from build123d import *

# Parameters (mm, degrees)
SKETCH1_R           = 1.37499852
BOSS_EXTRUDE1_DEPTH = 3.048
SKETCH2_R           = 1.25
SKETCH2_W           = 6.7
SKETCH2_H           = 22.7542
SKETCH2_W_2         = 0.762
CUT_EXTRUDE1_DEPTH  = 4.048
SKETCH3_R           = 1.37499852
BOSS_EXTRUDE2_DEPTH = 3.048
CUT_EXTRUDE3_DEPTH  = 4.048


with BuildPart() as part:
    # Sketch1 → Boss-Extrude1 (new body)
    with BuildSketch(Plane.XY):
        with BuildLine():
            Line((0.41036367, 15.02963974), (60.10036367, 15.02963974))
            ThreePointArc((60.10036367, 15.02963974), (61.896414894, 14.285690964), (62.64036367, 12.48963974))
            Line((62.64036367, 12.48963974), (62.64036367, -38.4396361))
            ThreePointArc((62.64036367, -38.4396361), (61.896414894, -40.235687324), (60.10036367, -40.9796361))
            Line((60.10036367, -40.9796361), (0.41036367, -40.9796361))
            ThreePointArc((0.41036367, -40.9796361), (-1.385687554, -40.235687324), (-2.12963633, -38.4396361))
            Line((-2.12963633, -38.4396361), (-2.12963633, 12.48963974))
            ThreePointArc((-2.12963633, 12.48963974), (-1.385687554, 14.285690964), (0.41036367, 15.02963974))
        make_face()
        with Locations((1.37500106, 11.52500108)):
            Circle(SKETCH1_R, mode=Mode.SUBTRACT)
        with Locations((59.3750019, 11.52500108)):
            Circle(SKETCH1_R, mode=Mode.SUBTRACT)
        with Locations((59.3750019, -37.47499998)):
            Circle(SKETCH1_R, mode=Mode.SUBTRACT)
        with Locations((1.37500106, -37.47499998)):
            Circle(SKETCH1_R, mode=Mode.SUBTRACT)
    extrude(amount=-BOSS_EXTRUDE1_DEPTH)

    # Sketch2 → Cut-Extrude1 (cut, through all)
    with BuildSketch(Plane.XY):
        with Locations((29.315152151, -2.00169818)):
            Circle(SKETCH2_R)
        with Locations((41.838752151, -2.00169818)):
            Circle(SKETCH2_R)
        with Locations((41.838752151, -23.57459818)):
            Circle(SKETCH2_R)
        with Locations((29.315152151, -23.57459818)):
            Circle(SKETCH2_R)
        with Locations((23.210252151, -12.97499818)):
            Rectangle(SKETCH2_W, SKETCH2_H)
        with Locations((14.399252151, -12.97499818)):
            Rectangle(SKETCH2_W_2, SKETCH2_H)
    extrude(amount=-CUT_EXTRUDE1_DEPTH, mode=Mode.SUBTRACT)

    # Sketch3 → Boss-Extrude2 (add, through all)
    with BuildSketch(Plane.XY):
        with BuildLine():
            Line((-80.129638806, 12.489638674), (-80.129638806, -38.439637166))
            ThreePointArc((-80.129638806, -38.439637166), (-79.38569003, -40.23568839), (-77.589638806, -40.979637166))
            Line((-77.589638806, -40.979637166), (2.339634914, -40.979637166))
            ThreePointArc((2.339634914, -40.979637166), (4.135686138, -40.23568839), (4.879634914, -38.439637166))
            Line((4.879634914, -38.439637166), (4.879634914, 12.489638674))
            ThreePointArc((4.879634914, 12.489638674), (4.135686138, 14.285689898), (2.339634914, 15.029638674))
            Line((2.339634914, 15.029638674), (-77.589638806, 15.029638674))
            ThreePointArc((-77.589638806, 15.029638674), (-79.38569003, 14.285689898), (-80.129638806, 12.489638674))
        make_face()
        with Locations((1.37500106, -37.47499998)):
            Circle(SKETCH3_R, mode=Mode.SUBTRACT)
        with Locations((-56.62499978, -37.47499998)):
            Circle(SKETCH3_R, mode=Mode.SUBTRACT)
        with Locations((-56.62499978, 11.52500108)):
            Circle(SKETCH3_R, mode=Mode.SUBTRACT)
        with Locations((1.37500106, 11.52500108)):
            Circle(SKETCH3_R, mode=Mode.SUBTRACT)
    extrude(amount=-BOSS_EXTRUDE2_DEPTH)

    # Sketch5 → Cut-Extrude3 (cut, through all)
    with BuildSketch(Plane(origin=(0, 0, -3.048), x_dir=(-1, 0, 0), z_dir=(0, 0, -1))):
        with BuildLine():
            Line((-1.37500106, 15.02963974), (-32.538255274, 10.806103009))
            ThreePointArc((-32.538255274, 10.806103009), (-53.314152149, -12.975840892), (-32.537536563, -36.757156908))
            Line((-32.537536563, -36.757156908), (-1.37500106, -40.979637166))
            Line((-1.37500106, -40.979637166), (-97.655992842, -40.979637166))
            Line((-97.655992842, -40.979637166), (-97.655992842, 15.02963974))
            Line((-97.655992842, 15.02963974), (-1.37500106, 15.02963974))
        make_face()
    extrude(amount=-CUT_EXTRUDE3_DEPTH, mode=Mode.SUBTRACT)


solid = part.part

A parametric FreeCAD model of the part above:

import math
import FreeCAD as App
import Part
import Sketcher
Q = App.Units.Quantity

doc = App.newDocument("Part")
body = doc.addObject("PartDesign::Body", "Body")

sketch1 = body.newObject("Sketcher::SketchObject", "Sketch")
sketch1.AttachmentSupport = (doc.getObject("XY_Plane"), [""])
sketch1.MapMode = "FlatFace"
sketch1.addGeometry(Part.LineSegment(App.Vector(60.1, 15, 0), App.Vector(0.4, 15, 0)), False)
sketch1.addGeometry(Part.ArcOfCircle(Part.Circle(App.Vector(0.4, 12.5, 0), App.Vector(0, 0, 1), 2.5), math.radians(90), math.radians(180)), False)
sketch1.addGeometry(Part.LineSegment(App.Vector(-2.1, 12.5, 0), App.Vector(-2.1, -38.4, 0)), False)
sketch1.addGeometry(Part.ArcOfCircle(Part.Circle(App.Vector(0.4, -38.4, 0), App.Vector(0, 0, 1), 2.5), math.radians(-180), math.radians(-90)), False)
sketch1.addGeometry(Part.LineSegment(App.Vector(0.4, -41, 0), App.Vector(60.1, -41, 0)), False)
sketch1.addGeometry(Part.ArcOfCircle(Part.Circle(App.Vector(60.1, -38.4, 0), App.Vector(0, 0, 1), 2.5), math.radians(-90), math.radians(0)), False)
sketch1.addGeometry(Part.LineSegment(App.Vector(62.6, -38.4, 0), App.Vector(62.6, 12.5, 0)), False)
sketch1.addGeometry(Part.ArcOfCircle(Part.Circle(App.Vector(60.1, 12.5, 0), App.Vector(0, 0, 1), 2.5), math.radians(0), math.radians(90)), False)
sketch1.addGeometry(Part.Circle(App.Vector(59.4, -37.5, 0), App.Vector(0, 0, 1), 1.4), False)
sketch1.addGeometry(Part.Circle(App.Vector(1.4, -37.5, 0), App.Vector(0, 0, 1), 1.4), False)
sketch1.addGeometry(Part.Circle(App.Vector(59.4, 11.5, 0), App.Vector(0, 0, 1), 1.4), False)
sketch1.addGeometry(Part.Circle(App.Vector(1.4, 11.5, 0), App.Vector(0, 0, 1), 1.4), False)
sketch1.addConstraint(Sketcher.Constraint("Tangent", 0, 2, 1, 1))
sketch1.addConstraint(Sketcher.Constraint("Tangent", 1, 2, 2, 1))
sketch1.addConstraint(Sketcher.Constraint("Tangent", 2, 2, 3, 1))
sketch1.addConstraint(Sketcher.Constraint("Tangent", 3, 2, 4, 1))
sketch1.addConstraint(Sketcher.Constraint("Tangent", 4, 2, 5, 1))
sketch1.addConstraint(Sketcher.Constraint("Tangent", 5, 2, 6, 1))
sketch1.addConstraint(Sketcher.Constraint("Tangent", 6, 2, 7, 1))
sketch1.addConstraint(Sketcher.Constraint("Tangent", 7, 2, 0, 1))
sketch1.addConstraint(Sketcher.Constraint("Horizontal", 0))
sketch1.addConstraint(Sketcher.Constraint("Vertical", 2))
sketch1.addConstraint(Sketcher.Constraint("Horizontal", 4))
sketch1.addConstraint(Sketcher.Constraint("Vertical", 6))
sketch1.addConstraint(Sketcher.Constraint("Equal", 1, 3))
sketch1.addConstraint(Sketcher.Constraint("Equal", 3, 5))
sketch1.addConstraint(Sketcher.Constraint("Equal", 5, 7))
sketch1.addConstraint(Sketcher.Constraint("Equal", 8, 9))
sketch1.addConstraint(Sketcher.Constraint("Equal", 9, 10))
sketch1.addConstraint(Sketcher.Constraint("Equal", 10, 11))
sketch1.addConstraint(Sketcher.Constraint("Horizontal", 8, 3, 9, 3))
sketch1.addConstraint(Sketcher.Constraint("Horizontal", 10, 3, 11, 3))
sketch1.addConstraint(Sketcher.Constraint("Vertical", 8, 3, 10, 3))
sketch1.addConstraint(Sketcher.Constraint("Vertical", 9, 3, 11, 3))
sketch1.addConstraint(Sketcher.Constraint("Radius", 1, Q("0.1 in")))
sketch1.addConstraint(Sketcher.Constraint("DistanceX", 0, 2, 0, 1, Q("2.35 in")))
sketch1.addConstraint(Sketcher.Constraint("Diameter", 8, 2.749997))
sketch1.addConstraint(Sketcher.Constraint("DistanceX", -1, 1, 8, 3, 59.375002))
sketch1.addConstraint(Sketcher.Constraint("DistanceY", 8, 3, -1, 1, 37.475))
sketch1.addConstraint(Sketcher.Constraint("DistanceX", -1, 1, 9, 3, 1.375001))
sketch1.addConstraint(Sketcher.Constraint("DistanceY", -1, 1, 10, 3, 11.525001))
sketch1.addConstraint(Sketcher.Constraint("DistanceY", 2, 2, 2, 1, 50.929276))
sketch1.addConstraint(Sketcher.Constraint("DistanceY", -1, 1, 1, 3, 12.48964))
sketch1.addConstraint(Sketcher.Constraint("DistanceX", 8, 3, 5, 3, 0.725362))
pad1 = body.newObject("PartDesign::Pad", "Pad")
pad1.Profile = sketch1
pad1.Length = Q("0.12 in")
pad1.Reversed = True

sketch2 = body.newObject("Sketcher::SketchObject", "Sketch001")
sketch2.AttachmentSupport = (doc.getObject("XY_Plane"), [""])
sketch2.MapMode = "FlatFace"
sketch2.addGeometry(Part.Circle(App.Vector(29.3, -2, 0), App.Vector(0, 0, 1), 1.2), False)
sketch2.addGeometry(Part.Circle(App.Vector(41.8, -2, 0), App.Vector(0, 0, 1), 1.2), False)
sketch2.addGeometry(Part.Circle(App.Vector(41.8, -23.6, 0), App.Vector(0, 0, 1), 1.2), False)
sketch2.addGeometry(Part.Circle(App.Vector(29.3, -23.6, 0), App.Vector(0, 0, 1), 1.2), False)
sketch2.addGeometry(Part.LineSegment(App.Vector(19.9, -1.6, 0), App.Vector(19.9, -24.4, 0)), False)
sketch2.addGeometry(Part.LineSegment(App.Vector(19.9, -24.4, 0), App.Vector(26.6, -24.4, 0)), False)
sketch2.addGeometry(Part.LineSegment(App.Vector(26.6, -24.4, 0), App.Vector(26.6, -1.6, 0)), False)
sketch2.addGeometry(Part.LineSegment(App.Vector(26.6, -1.6, 0), App.Vector(19.9, -1.6, 0)), False)
sketch2.addGeometry(Part.LineSegment(App.Vector(14, -1.6, 0), App.Vector(14, -24.4, 0)), False)
sketch2.addGeometry(Part.LineSegment(App.Vector(14, -24.4, 0), App.Vector(14.8, -24.4, 0)), False)
sketch2.addGeometry(Part.LineSegment(App.Vector(14.8, -24.4, 0), App.Vector(14.8, -1.6, 0)), False)
sketch2.addGeometry(Part.LineSegment(App.Vector(14.8, -1.6, 0), App.Vector(14, -1.6, 0)), False)
sketch2.addConstraint(Sketcher.Constraint("Coincident", 4, 2, 5, 1))
sketch2.addConstraint(Sketcher.Constraint("Coincident", 5, 2, 6, 1))
sketch2.addConstraint(Sketcher.Constraint("Coincident", 6, 2, 7, 1))
sketch2.addConstraint(Sketcher.Constraint("Coincident", 7, 2, 4, 1))
sketch2.addConstraint(Sketcher.Constraint("Coincident", 8, 2, 9, 1))
sketch2.addConstraint(Sketcher.Constraint("Coincident", 9, 2, 10, 1))
sketch2.addConstraint(Sketcher.Constraint("Coincident", 10, 2, 11, 1))
sketch2.addConstraint(Sketcher.Constraint("Coincident", 11, 2, 8, 1))
sketch2.addConstraint(Sketcher.Constraint("Vertical", 4))
sketch2.addConstraint(Sketcher.Constraint("Horizontal", 5))
sketch2.addConstraint(Sketcher.Constraint("Vertical", 6))
sketch2.addConstraint(Sketcher.Constraint("Horizontal", 7))
sketch2.addConstraint(Sketcher.Constraint("Vertical", 8))
sketch2.addConstraint(Sketcher.Constraint("Horizontal", 9))
sketch2.addConstraint(Sketcher.Constraint("Vertical", 10))
sketch2.addConstraint(Sketcher.Constraint("Horizontal", 11))
sketch2.addConstraint(Sketcher.Constraint("Equal", 0, 1))
sketch2.addConstraint(Sketcher.Constraint("Equal", 1, 2))
sketch2.addConstraint(Sketcher.Constraint("Equal", 2, 3))
sketch2.addConstraint(Sketcher.Constraint("Horizontal", 0, 3, 1, 3))
sketch2.addConstraint(Sketcher.Constraint("Horizontal", 2, 3, 3, 3))
sketch2.addConstraint(Sketcher.Constraint("Horizontal", 5, 2, 8, 2))
sketch2.addConstraint(Sketcher.Constraint("Horizontal", 7, 2, 10, 2))
sketch2.addConstraint(Sketcher.Constraint("Vertical", 1, 3, 2, 3))
sketch2.addConstraint(Sketcher.Constraint("Vertical", 0, 3, 3, 3))
sketch2.addConstraint(Sketcher.Constraint("DistanceX", 9, 1, 9, 2, Q("0.03 in")))
sketch2.addConstraint(Sketcher.Constraint("DistanceX", 9, 2, 4, 2, Q("0.2 in")))
sketch2.addConstraint(Sketcher.Constraint("Diameter", 0, 2.5))
sketch2.addConstraint(Sketcher.Constraint("DistanceX", 5, 1, 5, 2, 6.7))
sketch2.addConstraint(Sketcher.Constraint("DistanceY", 4, 2, 4, 1, 22.7542))
sketch2.addConstraint(Sketcher.Constraint("DistanceY", 0, 3, -1, 1, 2.001698))
sketch2.addConstraint(Sketcher.Constraint("DistanceY", 2, 3, -1, 1, 23.574598))
sketch2.addConstraint(Sketcher.Constraint("DistanceY", 4, 2, -1, 1, 24.352098))
sketch2.addConstraint(Sketcher.Constraint("DistanceX", 0, 3, 1, 3, 12.5236))
sketch2.addConstraint(Sketcher.Constraint("DistanceX", 4, 2, 3, 3, 9.4549))
sketch2.addConstraint(Sketcher.Constraint("DistanceX", -1, 1, 0, 3, 29.315152))
pocket1 = body.newObject("PartDesign::Pocket", "Pocket")
pocket1.Profile = sketch2
pocket1.Type = "ThroughAll"

sketch3 = body.newObject("Sketcher::SketchObject", "Sketch002")
sketch3.AttachmentSupport = (doc.getObject("XY_Plane"), [""])
sketch3.MapMode = "FlatFace"
sketch3.addGeometry(Part.LineSegment(App.Vector(-80.1, 12.5, 0), App.Vector(-80.1, -38.4, 0)), False)
sketch3.addGeometry(Part.ArcOfCircle(Part.Circle(App.Vector(-77.6, -38.4, 0), App.Vector(0, 0, 1), 2.5), math.radians(-180), math.radians(-90)), False)
sketch3.addGeometry(Part.LineSegment(App.Vector(-77.6, -41, 0), App.Vector(2.3, -41, 0)), False)
sketch3.addGeometry(Part.ArcOfCircle(Part.Circle(App.Vector(2.3, -38.4, 0), App.Vector(0, 0, 1), 2.5), math.radians(-90), math.radians(0)), False)
sketch3.addGeometry(Part.LineSegment(App.Vector(4.9, -38.4, 0), App.Vector(4.9, 12.5, 0)), False)
sketch3.addGeometry(Part.ArcOfCircle(Part.Circle(App.Vector(2.3, 12.5, 0), App.Vector(0, 0, 1), 2.5), math.radians(0), math.radians(90)), False)
sketch3.addGeometry(Part.LineSegment(App.Vector(2.3, 15, 0), App.Vector(-77.6, 15, 0)), False)
sketch3.addGeometry(Part.ArcOfCircle(Part.Circle(App.Vector(-77.6, 12.5, 0), App.Vector(0, 0, 1), 2.5), math.radians(90), math.radians(180)), False)
sketch3.addGeometry(Part.Circle(App.Vector(-56.6, -37.5, 0), App.Vector(0, 0, 1), 1.4), False)
sketch3.addGeometry(Part.Circle(App.Vector(1.4, -37.5, 0), App.Vector(0, 0, 1), 1.4), False)
sketch3.addGeometry(Part.Circle(App.Vector(-56.6, 11.5, 0), App.Vector(0, 0, 1), 1.4), False)
sketch3.addGeometry(Part.Circle(App.Vector(1.4, 11.5, 0), App.Vector(0, 0, 1), 1.4), False)
sketch3.addConstraint(Sketcher.Constraint("Tangent", 0, 2, 1, 1))
sketch3.addConstraint(Sketcher.Constraint("Tangent", 1, 2, 2, 1))
sketch3.addConstraint(Sketcher.Constraint("Tangent", 2, 2, 3, 1))
sketch3.addConstraint(Sketcher.Constraint("Tangent", 3, 2, 4, 1))
sketch3.addConstraint(Sketcher.Constraint("Tangent", 4, 2, 5, 1))
sketch3.addConstraint(Sketcher.Constraint("Tangent", 5, 2, 6, 1))
sketch3.addConstraint(Sketcher.Constraint("Tangent", 6, 2, 7, 1))
sketch3.addConstraint(Sketcher.Constraint("Tangent", 7, 2, 0, 1))
sketch3.addConstraint(Sketcher.Constraint("Vertical", 0))
sketch3.addConstraint(Sketcher.Constraint("Horizontal", 2))
sketch3.addConstraint(Sketcher.Constraint("Vertical", 4))
sketch3.addConstraint(Sketcher.Constraint("Horizontal", 6))
sketch3.addConstraint(Sketcher.Constraint("Equal", 1, 3))
sketch3.addConstraint(Sketcher.Constraint("Equal", 3, 5))
sketch3.addConstraint(Sketcher.Constraint("Equal", 5, 7))
sketch3.addConstraint(Sketcher.Constraint("Equal", 8, 9))
sketch3.addConstraint(Sketcher.Constraint("Equal", 9, 10))
sketch3.addConstraint(Sketcher.Constraint("Equal", 10, 11))
sketch3.addConstraint(Sketcher.Constraint("Horizontal", 8, 3, 9, 3))
sketch3.addConstraint(Sketcher.Constraint("Horizontal", 10, 3, 11, 3))
sketch3.addConstraint(Sketcher.Constraint("Vertical", 8, 3, 10, 3))
sketch3.addConstraint(Sketcher.Constraint("Vertical", 9, 3, 11, 3))
sketch3.addConstraint(Sketcher.Constraint("Radius", 1, Q("0.1 in")))
sketch3.addConstraint(Sketcher.Constraint("Diameter", 8, 2.749997))
sketch3.addConstraint(Sketcher.Constraint("DistanceX", 8, 3, -1, 1, 56.625))
sketch3.addConstraint(Sketcher.Constraint("DistanceY", 8, 3, -1, 1, 37.475))
sketch3.addConstraint(Sketcher.Constraint("DistanceX", -1, 1, 9, 3, 1.375001))
sketch3.addConstraint(Sketcher.Constraint("DistanceY", -1, 1, 10, 3, 11.525001))
sketch3.addConstraint(Sketcher.Constraint("DistanceX", 2, 1, 2, 2, 79.929274))
sketch3.addConstraint(Sketcher.Constraint("DistanceY", 0, 2, 0, 1, 50.929276))
sketch3.addConstraint(Sketcher.Constraint("DistanceX", 1, 3, -1, 1, 77.589639))
sketch3.addConstraint(Sketcher.Constraint("DistanceY", -1, 1, 5, 3, 12.489639))
pad2 = body.newObject("PartDesign::Pad", "Pad001")
pad2.Profile = sketch3
pad2.Length = Q("0.12 in")
pad2.Reversed = True

sketch4 = body.newObject("Sketcher::SketchObject", "Sketch003")
sketch4.AttachmentSupport = (doc.getObject("XY_Plane"), [""])
sketch4.MapMode = "FlatFace"
sketch4.AttachmentOffset = App.Placement(App.Vector(0, 0, -0.12 * 25.4), App.Rotation())
sketch4.addGeometry(Part.LineSegment(App.Vector(33, 11, 0), App.Vector(1, 15, 0)), False)
sketch4.addGeometry(Part.LineSegment(App.Vector(1, 15, 0), App.Vector(98, 15, 0)), False)
sketch4.addGeometry(Part.LineSegment(App.Vector(98, 15, 0), App.Vector(98, -41, 0)), False)
sketch4.addGeometry(Part.LineSegment(App.Vector(98, -41, 0), App.Vector(1, -41, 0)), False)
sketch4.addGeometry(Part.LineSegment(App.Vector(1, -41, 0), App.Vector(33, -37, 0)), False)
sketch4.addGeometry(Part.ArcOfCircle(Part.Circle(App.Vector(29, -13, 0), App.Vector(0, 0, 1), 24), math.radians(-82), math.radians(82)), False)
sketch4.addConstraint(Sketcher.Constraint("Coincident", 0, 2, 1, 1))
sketch4.addConstraint(Sketcher.Constraint("Coincident", 1, 2, 2, 1))
sketch4.addConstraint(Sketcher.Constraint("Coincident", 2, 2, 3, 1))
sketch4.addConstraint(Sketcher.Constraint("Coincident", 3, 2, 4, 1))
sketch4.addConstraint(Sketcher.Constraint("Tangent", 4, 2, 5, 1))
sketch4.addConstraint(Sketcher.Constraint("Tangent", 5, 2, 0, 1))
sketch4.addConstraint(Sketcher.Constraint("Horizontal", 1))
sketch4.addConstraint(Sketcher.Constraint("Vertical", 2))
sketch4.addConstraint(Sketcher.Constraint("Horizontal", 3))
sketch4.addConstraint(Sketcher.Constraint("Vertical", 0, 2, 3, 2))
sketch4.addConstraint(Sketcher.Constraint("Radius", 5, 23.999))
sketch4.addConstraint(Sketcher.Constraint("DistanceX", 1, 1, 1, 2, 96.280992))
sketch4.addConstraint(Sketcher.Constraint("DistanceX", -1, 1, 0, 2, 1.375001))
sketch4.addConstraint(Sketcher.Constraint("Distance", 0, 31.448159))
sketch4.addConstraint(Sketcher.Constraint("DistanceY", 2, 2, 2, 1, 56.009277))
sketch4.addConstraint(Sketcher.Constraint("DistanceY", 5, 3, -1, 1, 12.975478))
sketch4.addConstraint(Sketcher.Constraint("DistanceY", -1, 1, 0, 2, 15.02964))
pocket2 = body.newObject("PartDesign::Pocket", "Pocket001")
pocket2.Profile = sketch4
pocket2.Type = "ThroughAll"
pocket2.Reversed = True

doc.recompute()
